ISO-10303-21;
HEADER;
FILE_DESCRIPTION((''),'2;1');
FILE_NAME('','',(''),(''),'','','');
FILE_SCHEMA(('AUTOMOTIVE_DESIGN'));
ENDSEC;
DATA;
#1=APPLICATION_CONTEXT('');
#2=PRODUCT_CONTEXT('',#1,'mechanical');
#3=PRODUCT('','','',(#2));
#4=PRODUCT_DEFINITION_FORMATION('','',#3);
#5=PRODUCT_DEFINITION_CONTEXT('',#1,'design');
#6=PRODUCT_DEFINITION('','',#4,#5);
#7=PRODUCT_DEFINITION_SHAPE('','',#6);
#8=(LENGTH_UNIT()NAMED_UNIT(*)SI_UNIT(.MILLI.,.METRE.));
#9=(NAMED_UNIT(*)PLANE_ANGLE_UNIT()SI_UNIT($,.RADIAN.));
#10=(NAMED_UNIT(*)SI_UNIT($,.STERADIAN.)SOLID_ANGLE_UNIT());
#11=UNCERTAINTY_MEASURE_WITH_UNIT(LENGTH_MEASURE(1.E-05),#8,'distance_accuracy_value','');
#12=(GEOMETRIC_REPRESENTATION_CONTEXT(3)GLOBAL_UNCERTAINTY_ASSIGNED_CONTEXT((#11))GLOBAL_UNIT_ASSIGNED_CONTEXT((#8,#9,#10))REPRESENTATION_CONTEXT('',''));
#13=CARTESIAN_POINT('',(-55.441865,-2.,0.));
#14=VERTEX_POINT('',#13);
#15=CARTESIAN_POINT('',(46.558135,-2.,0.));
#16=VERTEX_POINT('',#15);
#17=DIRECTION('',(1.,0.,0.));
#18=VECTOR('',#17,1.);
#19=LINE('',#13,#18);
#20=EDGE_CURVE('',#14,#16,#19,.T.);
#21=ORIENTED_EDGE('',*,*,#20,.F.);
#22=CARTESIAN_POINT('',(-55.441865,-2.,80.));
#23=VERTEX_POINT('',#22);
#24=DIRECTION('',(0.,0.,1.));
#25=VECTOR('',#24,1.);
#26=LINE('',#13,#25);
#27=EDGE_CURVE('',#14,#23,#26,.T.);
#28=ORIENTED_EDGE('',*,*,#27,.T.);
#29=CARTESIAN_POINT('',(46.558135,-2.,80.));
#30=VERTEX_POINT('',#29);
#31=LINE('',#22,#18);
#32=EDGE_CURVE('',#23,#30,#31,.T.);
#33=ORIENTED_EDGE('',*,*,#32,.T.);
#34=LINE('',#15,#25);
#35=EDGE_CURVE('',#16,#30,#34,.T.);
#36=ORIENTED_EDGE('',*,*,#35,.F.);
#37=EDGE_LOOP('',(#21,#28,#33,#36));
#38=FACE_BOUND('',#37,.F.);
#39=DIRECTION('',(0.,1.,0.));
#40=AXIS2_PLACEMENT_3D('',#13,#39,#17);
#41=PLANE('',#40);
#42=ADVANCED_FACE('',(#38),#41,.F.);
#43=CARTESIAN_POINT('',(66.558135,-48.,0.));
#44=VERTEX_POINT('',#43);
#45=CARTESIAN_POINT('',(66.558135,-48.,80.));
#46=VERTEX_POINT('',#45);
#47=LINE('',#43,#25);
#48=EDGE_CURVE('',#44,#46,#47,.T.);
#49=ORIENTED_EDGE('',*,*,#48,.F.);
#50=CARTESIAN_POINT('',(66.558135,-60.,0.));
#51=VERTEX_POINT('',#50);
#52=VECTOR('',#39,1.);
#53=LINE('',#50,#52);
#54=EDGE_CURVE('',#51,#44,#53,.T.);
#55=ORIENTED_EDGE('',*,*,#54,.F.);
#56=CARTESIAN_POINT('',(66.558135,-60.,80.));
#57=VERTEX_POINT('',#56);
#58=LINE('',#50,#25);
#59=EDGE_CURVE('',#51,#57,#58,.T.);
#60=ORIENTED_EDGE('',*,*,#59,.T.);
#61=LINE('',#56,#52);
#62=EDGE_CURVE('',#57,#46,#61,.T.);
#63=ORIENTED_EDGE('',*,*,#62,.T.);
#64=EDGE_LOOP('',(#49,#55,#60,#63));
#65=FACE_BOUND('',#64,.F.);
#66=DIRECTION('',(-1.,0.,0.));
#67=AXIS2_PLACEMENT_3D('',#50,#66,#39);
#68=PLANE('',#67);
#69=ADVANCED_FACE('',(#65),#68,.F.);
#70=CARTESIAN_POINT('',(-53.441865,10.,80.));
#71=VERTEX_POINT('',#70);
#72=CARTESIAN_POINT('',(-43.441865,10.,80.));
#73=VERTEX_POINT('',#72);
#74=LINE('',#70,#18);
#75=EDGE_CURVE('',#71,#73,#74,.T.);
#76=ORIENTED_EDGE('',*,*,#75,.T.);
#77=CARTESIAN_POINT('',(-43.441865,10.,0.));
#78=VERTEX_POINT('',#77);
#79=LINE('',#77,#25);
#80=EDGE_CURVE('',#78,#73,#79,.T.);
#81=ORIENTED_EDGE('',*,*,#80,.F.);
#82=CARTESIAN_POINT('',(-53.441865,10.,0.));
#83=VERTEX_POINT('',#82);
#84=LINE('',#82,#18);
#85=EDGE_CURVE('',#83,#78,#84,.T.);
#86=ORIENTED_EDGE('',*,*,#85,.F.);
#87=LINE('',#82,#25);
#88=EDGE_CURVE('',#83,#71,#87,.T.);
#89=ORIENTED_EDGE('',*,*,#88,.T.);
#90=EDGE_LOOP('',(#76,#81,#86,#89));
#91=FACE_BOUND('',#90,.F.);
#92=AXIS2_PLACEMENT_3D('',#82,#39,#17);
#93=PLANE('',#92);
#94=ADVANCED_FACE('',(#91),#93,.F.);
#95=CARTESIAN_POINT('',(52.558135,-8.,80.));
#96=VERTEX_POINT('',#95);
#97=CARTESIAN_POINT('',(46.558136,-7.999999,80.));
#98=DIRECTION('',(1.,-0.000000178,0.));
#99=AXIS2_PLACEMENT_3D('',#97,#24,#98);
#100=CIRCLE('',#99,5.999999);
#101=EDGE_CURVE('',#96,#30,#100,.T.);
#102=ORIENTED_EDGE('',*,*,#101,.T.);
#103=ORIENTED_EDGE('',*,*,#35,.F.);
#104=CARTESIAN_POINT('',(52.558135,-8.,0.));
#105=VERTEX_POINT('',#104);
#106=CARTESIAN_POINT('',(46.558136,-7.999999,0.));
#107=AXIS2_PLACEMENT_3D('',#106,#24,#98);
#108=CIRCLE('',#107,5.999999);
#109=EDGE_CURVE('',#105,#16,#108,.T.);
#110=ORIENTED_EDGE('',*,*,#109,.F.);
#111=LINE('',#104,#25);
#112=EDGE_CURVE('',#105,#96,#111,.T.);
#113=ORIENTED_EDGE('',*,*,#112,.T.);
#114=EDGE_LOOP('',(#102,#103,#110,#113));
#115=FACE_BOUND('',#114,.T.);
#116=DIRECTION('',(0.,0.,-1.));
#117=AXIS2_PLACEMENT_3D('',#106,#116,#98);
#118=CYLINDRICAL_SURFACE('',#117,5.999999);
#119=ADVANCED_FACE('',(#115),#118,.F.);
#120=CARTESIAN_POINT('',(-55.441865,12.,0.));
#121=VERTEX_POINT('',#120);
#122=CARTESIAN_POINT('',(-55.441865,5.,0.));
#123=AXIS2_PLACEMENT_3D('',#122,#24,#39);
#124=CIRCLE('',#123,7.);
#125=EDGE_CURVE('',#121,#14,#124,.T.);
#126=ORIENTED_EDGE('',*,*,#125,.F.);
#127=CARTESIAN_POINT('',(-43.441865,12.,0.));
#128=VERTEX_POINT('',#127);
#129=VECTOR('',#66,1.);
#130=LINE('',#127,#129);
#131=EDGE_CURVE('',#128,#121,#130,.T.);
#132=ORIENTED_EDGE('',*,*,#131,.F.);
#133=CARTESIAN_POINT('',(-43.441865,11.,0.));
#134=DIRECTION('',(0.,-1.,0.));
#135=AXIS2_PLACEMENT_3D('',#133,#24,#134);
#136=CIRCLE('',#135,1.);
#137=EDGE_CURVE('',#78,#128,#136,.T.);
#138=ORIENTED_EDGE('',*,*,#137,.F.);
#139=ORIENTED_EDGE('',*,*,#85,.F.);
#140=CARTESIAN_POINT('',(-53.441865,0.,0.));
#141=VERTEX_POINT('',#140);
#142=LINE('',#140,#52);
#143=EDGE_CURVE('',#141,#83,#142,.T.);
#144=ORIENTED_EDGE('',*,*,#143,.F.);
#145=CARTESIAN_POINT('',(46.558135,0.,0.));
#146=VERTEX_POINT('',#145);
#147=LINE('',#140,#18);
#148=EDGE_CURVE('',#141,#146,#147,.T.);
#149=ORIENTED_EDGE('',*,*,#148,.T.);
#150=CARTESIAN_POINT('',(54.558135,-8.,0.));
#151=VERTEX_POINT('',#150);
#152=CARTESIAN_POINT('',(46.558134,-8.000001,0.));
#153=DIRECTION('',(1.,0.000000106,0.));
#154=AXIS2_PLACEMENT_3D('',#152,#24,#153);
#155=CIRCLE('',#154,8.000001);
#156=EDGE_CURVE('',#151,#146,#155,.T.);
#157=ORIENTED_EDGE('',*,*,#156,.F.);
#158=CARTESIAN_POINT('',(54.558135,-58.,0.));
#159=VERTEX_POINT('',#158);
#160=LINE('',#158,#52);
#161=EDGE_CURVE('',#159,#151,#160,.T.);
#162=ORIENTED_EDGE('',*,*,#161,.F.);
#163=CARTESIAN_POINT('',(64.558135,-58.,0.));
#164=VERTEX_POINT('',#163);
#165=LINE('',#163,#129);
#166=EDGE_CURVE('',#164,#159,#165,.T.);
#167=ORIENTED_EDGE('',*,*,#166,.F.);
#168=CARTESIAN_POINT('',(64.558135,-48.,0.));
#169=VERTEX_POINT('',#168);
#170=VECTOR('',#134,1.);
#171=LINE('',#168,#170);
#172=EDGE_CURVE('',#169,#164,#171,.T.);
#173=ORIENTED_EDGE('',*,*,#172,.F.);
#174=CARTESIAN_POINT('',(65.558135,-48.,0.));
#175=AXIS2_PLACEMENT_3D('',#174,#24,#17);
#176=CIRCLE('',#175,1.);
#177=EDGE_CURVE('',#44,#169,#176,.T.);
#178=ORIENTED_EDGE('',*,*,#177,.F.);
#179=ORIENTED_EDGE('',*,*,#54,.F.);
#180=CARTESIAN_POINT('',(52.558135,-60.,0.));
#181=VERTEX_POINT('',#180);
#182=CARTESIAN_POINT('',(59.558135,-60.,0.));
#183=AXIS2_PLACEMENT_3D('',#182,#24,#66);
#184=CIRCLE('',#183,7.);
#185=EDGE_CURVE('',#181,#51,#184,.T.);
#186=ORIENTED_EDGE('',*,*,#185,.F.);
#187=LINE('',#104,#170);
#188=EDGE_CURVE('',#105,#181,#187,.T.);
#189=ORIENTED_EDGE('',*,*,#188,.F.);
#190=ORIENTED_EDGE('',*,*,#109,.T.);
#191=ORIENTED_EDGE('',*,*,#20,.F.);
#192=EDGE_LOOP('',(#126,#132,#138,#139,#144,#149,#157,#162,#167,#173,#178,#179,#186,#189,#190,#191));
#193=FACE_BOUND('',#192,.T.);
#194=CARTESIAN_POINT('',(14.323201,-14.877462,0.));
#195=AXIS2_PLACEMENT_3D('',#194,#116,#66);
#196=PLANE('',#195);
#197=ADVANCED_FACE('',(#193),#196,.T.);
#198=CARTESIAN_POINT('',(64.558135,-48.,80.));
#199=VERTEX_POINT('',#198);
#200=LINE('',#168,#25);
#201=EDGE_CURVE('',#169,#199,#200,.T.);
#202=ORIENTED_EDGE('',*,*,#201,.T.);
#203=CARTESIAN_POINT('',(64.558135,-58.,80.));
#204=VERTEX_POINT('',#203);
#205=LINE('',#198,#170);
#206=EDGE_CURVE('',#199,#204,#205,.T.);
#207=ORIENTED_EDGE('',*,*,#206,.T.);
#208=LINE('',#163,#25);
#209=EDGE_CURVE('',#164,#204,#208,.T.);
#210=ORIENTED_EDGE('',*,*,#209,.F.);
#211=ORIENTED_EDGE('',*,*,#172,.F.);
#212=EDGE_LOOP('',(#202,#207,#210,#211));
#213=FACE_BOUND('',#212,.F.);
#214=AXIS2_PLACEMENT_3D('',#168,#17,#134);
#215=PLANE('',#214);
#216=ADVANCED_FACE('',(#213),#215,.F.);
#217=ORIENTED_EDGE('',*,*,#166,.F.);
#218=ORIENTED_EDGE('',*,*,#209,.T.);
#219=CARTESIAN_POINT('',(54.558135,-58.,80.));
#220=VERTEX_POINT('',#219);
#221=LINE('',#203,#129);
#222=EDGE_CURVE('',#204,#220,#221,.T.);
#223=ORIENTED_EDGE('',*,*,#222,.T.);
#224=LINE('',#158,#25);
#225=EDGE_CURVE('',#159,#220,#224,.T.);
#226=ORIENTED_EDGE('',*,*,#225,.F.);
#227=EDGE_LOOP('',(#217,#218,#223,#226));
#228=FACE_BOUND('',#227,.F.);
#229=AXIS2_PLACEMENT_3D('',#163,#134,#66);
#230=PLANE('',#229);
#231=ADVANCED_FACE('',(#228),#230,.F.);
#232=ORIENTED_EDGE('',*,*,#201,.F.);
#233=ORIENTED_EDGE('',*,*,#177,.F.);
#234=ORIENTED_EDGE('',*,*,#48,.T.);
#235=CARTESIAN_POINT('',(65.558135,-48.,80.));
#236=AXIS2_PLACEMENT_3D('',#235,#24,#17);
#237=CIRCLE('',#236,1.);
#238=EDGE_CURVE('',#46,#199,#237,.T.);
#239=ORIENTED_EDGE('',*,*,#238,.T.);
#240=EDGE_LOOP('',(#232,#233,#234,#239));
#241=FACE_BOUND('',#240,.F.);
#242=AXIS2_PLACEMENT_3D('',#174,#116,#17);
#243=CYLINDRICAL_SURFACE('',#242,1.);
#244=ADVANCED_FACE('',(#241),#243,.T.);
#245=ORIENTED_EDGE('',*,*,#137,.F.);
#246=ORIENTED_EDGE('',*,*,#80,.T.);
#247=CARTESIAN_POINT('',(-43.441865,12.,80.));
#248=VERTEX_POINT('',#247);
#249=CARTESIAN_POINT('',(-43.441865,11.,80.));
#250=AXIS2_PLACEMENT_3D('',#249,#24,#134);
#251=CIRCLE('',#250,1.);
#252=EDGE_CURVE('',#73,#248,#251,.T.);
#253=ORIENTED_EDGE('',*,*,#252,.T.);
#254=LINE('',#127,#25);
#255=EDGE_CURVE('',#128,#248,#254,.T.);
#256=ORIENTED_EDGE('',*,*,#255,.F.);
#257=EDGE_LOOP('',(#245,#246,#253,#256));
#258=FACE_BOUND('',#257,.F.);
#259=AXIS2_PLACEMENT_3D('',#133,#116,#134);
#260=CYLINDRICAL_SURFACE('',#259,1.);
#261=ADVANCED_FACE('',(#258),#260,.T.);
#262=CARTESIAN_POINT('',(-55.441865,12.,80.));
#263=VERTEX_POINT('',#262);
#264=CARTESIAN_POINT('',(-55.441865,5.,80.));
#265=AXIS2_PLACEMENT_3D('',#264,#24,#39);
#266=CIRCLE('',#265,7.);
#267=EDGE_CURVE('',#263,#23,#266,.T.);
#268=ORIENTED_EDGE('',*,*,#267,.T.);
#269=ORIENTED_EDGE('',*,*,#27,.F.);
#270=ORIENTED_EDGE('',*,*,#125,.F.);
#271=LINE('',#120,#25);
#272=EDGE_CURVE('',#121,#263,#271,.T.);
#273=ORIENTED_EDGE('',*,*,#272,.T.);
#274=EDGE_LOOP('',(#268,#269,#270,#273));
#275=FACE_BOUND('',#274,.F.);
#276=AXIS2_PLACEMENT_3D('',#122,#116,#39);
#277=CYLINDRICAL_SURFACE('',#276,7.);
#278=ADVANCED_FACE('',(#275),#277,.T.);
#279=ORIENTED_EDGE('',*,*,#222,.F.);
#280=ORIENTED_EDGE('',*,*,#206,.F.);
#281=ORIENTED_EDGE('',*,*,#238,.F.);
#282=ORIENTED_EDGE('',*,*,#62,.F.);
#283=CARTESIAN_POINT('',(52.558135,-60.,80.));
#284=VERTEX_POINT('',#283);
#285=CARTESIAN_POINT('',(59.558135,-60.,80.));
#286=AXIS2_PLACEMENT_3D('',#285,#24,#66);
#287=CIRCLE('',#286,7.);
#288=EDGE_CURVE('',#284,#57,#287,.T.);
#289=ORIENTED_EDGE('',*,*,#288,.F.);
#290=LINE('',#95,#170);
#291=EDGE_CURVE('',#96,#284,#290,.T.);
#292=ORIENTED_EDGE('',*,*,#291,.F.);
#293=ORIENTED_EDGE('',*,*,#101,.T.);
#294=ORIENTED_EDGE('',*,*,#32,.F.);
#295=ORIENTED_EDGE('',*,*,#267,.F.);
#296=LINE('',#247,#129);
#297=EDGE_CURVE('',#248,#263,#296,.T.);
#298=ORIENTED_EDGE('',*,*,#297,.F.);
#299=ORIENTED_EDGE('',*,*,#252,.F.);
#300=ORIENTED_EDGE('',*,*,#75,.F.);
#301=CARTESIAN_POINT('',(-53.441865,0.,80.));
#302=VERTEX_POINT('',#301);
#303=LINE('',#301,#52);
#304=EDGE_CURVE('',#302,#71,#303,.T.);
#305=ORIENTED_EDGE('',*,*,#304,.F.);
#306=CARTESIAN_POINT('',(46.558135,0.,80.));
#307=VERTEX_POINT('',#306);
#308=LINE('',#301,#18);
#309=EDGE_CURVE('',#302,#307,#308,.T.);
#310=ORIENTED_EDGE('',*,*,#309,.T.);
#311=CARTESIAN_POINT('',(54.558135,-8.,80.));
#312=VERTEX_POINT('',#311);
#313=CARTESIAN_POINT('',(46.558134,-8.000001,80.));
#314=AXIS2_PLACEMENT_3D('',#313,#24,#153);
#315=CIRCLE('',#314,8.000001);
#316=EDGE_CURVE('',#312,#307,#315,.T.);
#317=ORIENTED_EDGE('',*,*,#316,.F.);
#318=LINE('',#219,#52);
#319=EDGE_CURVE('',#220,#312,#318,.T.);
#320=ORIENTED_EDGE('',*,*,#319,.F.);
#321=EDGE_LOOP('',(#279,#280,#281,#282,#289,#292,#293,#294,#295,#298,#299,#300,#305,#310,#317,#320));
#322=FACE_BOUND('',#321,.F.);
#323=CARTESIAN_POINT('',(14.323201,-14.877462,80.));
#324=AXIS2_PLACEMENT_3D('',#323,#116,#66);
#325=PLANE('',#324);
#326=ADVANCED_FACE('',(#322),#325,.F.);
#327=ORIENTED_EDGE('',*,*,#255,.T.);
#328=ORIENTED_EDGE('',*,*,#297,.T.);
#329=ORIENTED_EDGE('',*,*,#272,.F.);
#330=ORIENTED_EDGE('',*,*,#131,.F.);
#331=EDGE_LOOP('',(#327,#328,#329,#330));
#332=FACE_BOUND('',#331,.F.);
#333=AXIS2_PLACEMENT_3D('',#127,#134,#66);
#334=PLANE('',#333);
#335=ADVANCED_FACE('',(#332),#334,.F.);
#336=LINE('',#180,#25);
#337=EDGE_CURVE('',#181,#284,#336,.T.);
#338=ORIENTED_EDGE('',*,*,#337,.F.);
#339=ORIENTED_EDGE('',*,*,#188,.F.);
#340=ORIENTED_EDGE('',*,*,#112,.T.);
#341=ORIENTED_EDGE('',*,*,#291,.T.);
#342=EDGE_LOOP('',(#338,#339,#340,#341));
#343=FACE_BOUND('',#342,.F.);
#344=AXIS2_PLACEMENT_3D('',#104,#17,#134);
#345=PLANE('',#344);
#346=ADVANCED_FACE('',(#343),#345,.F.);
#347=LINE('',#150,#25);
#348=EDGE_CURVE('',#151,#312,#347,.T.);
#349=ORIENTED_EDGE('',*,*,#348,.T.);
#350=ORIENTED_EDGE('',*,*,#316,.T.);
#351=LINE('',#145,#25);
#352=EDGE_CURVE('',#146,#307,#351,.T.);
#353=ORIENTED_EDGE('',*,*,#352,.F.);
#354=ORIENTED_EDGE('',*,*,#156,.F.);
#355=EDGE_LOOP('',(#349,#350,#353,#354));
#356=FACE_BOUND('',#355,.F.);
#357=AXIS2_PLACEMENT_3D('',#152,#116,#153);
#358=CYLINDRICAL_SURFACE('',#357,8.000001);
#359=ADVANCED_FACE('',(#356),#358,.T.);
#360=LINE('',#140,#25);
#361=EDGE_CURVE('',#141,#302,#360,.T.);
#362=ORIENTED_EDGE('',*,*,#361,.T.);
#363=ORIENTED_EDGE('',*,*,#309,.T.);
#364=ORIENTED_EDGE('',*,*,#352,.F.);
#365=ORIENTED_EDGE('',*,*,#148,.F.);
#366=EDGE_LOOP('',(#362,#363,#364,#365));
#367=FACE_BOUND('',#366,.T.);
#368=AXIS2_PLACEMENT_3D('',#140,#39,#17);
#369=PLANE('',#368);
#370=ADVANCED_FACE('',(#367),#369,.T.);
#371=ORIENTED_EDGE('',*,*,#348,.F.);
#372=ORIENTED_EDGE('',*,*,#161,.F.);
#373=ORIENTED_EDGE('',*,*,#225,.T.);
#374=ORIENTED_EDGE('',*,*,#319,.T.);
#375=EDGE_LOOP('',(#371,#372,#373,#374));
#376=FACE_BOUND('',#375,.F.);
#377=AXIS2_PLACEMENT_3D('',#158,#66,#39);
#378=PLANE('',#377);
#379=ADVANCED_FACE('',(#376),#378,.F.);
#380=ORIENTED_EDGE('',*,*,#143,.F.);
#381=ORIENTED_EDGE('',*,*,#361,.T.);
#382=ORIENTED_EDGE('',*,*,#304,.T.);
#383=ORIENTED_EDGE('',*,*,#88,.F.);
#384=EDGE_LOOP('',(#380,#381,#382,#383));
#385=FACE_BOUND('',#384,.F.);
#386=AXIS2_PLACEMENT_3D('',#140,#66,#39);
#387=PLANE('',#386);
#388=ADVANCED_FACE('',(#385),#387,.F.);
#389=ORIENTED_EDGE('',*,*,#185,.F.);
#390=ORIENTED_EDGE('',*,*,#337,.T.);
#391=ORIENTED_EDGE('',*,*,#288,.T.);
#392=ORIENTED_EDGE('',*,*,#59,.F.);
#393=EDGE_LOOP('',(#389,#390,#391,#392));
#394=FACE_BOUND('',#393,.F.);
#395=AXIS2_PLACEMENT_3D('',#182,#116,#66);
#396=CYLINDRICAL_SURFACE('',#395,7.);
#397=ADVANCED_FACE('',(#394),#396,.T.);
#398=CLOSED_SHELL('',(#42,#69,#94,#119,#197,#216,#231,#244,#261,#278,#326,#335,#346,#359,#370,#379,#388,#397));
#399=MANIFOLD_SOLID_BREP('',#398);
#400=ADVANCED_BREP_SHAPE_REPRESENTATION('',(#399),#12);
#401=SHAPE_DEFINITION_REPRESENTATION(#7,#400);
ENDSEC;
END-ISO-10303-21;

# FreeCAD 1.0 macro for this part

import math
import FreeCAD as App
import Part
import Sketcher

V = App.Vector
Q = App.Units.Quantity

doc = App.newDocument("Part")
body = doc.addObject("PartDesign::Body", "Body")

# Sketch on XY plane
sketch1 = body.newObject("Sketcher::SketchObject", "Sketch")
sketch1.AttachmentSupport = (doc.getObject("XY_Plane"), [""])
sketch1.MapMode = "FlatFace"
sketch1.addGeometry([
    Part.LineSegment(V(46.6, 0, 0), V(-53.4, 0, 0)),  # 0
    Part.LineSegment(V(-53.4, 0, 0), V(-53.4, 10, 0)),  # 1
    Part.LineSegment(V(-53.4, 10, 0), V(-43.4, 10, 0)),  # 2
    Part.ArcOfCircle(Part.Circle(V(-43.4, 11, 0), V(0, 0, 1), 1), math.radians(-90), math.radians(90)),  # 3
    Part.LineSegment(V(-43.4, 12, 0), V(-55.4, 12, 0)),  # 4
    Part.ArcOfCircle(Part.Circle(V(-55.4, 5, 0), V(0, 0, 1), 7), math.radians(90), math.radians(270)),  # 5
    Part.LineSegment(V(-55.4, -2, 0), V(46.6, -2, 0)),  # 6
    Part.ArcOfCircle(Part.Circle(V(46.6, -8, 0), V(0, 0, 1), 6), math.radians(0), math.radians(90)),  # 7
    Part.LineSegment(V(52.6, -8, 0), V(52.6, -60, 0)),  # 8
    Part.ArcOfCircle(Part.Circle(V(59.6, -60, 0), V(0, 0, 1), 7), math.radians(180), math.radians(360)),  # 9
    Part.LineSegment(V(66.6, -60, 0), V(66.6, -48, 0)),  # 10
    Part.ArcOfCircle(Part.Circle(V(65.6, -48, 0), V(0, 0, 1), 1), math.radians(0), math.radians(180)),  # 11
    Part.LineSegment(V(64.6, -48, 0), V(64.6, -58, 0)),  # 12
    Part.LineSegment(V(64.6, -58, 0), V(54.6, -58, 0)),  # 13
    Part.LineSegment(V(54.6, -58, 0), V(54.6, -8, 0)),  # 14
    Part.ArcOfCircle(Part.Circle(V(46.6, -8, 0), V(0, 0, 1), 8), math.radians(0), math.radians(90)),  # 15
], False)
sketch1.addConstraint([
    Sketcher.Constraint("Coincident", 0, 2, 1, 1),
    Sketcher.Constraint("Coincident", 1, 2, 2, 1),
    Sketcher.Constraint("Tangent", 2, 2, 3, 1),
    Sketcher.Constraint("Tangent", 3, 2, 4, 1),
    Sketcher.Constraint("Tangent", 4, 2, 5, 1),
    Sketcher.Constraint("Tangent", 5, 2, 6, 1),
    Sketcher.Constraint("Tangent", 6, 2, 7, 2),
    Sketcher.Constraint("Tangent", 7, 1, 8, 1),
    Sketcher.Constraint("Tangent", 8, 2, 9, 1),
    Sketcher.Constraint("Tangent", 9, 2, 10, 1),
    Sketcher.Constraint("Tangent", 10, 2, 11, 1),
    Sketcher.Constraint("Tangent", 11, 2, 12, 1),
    Sketcher.Constraint("Coincident", 12, 2, 13, 1),
    Sketcher.Constraint("Coincident", 13, 2, 14, 1),
    Sketcher.Constraint("Tangent", 14, 2, 15, 1),
    Sketcher.Constraint("Tangent", 15, 2, 0, 1),
    Sketcher.Constraint("Horizontal", 0),
    Sketcher.Constraint("Vertical", 1),
    Sketcher.Constraint("Horizontal", 2),
    Sketcher.Constraint("Horizontal", 4),
    Sketcher.Constraint("Horizontal", 6),
    Sketcher.Constraint("Vertical", 8),
    Sketcher.Constraint("Vertical", 10),
    Sketcher.Constraint("Vertical", 12),
    Sketcher.Constraint("Horizontal", 13),
    Sketcher.Constraint("Vertical", 14),
    Sketcher.Constraint("Coincident", 15, 3, 7, 3),
    Sketcher.Constraint("Equal", 5, 9),
    Sketcher.Constraint("Equal", 3, 11),
    Sketcher.Constraint("PointOnObject", 0, 2, -1),
    Sketcher.Constraint("Equal", 2, 13),
    Sketcher.Constraint("Equal", 4, 10),
    Sketcher.Constraint("Equal", 1, 12),
    Sketcher.Constraint("Radius", 3, Q("1 mm")),
    Sketcher.Constraint("Radius", 5, Q("7 mm")),
    Sketcher.Constraint("Radius", 7, Q("5.999999 mm")),
    Sketcher.Constraint("Radius", 15, Q("8.000001 mm")),
    Sketcher.Constraint("DistanceX", 0, 2, 0, 1, Q("100 mm")),
    Sketcher.Constraint("DistanceX", 4, 2, 4, 1, Q("12 mm")),
    Sketcher.Constraint("DistanceY", 8, 2, 8, 1, Q("52 mm")),
    Sketcher.Constraint("DistanceX", 3, 3, -1, 1, Q("43.441865 mm")),
])
pad1 = body.newObject("PartDesign::Pad", "Pad")
pad1.Profile = sketch1
pad1.Length = 80

doc.recompute()
